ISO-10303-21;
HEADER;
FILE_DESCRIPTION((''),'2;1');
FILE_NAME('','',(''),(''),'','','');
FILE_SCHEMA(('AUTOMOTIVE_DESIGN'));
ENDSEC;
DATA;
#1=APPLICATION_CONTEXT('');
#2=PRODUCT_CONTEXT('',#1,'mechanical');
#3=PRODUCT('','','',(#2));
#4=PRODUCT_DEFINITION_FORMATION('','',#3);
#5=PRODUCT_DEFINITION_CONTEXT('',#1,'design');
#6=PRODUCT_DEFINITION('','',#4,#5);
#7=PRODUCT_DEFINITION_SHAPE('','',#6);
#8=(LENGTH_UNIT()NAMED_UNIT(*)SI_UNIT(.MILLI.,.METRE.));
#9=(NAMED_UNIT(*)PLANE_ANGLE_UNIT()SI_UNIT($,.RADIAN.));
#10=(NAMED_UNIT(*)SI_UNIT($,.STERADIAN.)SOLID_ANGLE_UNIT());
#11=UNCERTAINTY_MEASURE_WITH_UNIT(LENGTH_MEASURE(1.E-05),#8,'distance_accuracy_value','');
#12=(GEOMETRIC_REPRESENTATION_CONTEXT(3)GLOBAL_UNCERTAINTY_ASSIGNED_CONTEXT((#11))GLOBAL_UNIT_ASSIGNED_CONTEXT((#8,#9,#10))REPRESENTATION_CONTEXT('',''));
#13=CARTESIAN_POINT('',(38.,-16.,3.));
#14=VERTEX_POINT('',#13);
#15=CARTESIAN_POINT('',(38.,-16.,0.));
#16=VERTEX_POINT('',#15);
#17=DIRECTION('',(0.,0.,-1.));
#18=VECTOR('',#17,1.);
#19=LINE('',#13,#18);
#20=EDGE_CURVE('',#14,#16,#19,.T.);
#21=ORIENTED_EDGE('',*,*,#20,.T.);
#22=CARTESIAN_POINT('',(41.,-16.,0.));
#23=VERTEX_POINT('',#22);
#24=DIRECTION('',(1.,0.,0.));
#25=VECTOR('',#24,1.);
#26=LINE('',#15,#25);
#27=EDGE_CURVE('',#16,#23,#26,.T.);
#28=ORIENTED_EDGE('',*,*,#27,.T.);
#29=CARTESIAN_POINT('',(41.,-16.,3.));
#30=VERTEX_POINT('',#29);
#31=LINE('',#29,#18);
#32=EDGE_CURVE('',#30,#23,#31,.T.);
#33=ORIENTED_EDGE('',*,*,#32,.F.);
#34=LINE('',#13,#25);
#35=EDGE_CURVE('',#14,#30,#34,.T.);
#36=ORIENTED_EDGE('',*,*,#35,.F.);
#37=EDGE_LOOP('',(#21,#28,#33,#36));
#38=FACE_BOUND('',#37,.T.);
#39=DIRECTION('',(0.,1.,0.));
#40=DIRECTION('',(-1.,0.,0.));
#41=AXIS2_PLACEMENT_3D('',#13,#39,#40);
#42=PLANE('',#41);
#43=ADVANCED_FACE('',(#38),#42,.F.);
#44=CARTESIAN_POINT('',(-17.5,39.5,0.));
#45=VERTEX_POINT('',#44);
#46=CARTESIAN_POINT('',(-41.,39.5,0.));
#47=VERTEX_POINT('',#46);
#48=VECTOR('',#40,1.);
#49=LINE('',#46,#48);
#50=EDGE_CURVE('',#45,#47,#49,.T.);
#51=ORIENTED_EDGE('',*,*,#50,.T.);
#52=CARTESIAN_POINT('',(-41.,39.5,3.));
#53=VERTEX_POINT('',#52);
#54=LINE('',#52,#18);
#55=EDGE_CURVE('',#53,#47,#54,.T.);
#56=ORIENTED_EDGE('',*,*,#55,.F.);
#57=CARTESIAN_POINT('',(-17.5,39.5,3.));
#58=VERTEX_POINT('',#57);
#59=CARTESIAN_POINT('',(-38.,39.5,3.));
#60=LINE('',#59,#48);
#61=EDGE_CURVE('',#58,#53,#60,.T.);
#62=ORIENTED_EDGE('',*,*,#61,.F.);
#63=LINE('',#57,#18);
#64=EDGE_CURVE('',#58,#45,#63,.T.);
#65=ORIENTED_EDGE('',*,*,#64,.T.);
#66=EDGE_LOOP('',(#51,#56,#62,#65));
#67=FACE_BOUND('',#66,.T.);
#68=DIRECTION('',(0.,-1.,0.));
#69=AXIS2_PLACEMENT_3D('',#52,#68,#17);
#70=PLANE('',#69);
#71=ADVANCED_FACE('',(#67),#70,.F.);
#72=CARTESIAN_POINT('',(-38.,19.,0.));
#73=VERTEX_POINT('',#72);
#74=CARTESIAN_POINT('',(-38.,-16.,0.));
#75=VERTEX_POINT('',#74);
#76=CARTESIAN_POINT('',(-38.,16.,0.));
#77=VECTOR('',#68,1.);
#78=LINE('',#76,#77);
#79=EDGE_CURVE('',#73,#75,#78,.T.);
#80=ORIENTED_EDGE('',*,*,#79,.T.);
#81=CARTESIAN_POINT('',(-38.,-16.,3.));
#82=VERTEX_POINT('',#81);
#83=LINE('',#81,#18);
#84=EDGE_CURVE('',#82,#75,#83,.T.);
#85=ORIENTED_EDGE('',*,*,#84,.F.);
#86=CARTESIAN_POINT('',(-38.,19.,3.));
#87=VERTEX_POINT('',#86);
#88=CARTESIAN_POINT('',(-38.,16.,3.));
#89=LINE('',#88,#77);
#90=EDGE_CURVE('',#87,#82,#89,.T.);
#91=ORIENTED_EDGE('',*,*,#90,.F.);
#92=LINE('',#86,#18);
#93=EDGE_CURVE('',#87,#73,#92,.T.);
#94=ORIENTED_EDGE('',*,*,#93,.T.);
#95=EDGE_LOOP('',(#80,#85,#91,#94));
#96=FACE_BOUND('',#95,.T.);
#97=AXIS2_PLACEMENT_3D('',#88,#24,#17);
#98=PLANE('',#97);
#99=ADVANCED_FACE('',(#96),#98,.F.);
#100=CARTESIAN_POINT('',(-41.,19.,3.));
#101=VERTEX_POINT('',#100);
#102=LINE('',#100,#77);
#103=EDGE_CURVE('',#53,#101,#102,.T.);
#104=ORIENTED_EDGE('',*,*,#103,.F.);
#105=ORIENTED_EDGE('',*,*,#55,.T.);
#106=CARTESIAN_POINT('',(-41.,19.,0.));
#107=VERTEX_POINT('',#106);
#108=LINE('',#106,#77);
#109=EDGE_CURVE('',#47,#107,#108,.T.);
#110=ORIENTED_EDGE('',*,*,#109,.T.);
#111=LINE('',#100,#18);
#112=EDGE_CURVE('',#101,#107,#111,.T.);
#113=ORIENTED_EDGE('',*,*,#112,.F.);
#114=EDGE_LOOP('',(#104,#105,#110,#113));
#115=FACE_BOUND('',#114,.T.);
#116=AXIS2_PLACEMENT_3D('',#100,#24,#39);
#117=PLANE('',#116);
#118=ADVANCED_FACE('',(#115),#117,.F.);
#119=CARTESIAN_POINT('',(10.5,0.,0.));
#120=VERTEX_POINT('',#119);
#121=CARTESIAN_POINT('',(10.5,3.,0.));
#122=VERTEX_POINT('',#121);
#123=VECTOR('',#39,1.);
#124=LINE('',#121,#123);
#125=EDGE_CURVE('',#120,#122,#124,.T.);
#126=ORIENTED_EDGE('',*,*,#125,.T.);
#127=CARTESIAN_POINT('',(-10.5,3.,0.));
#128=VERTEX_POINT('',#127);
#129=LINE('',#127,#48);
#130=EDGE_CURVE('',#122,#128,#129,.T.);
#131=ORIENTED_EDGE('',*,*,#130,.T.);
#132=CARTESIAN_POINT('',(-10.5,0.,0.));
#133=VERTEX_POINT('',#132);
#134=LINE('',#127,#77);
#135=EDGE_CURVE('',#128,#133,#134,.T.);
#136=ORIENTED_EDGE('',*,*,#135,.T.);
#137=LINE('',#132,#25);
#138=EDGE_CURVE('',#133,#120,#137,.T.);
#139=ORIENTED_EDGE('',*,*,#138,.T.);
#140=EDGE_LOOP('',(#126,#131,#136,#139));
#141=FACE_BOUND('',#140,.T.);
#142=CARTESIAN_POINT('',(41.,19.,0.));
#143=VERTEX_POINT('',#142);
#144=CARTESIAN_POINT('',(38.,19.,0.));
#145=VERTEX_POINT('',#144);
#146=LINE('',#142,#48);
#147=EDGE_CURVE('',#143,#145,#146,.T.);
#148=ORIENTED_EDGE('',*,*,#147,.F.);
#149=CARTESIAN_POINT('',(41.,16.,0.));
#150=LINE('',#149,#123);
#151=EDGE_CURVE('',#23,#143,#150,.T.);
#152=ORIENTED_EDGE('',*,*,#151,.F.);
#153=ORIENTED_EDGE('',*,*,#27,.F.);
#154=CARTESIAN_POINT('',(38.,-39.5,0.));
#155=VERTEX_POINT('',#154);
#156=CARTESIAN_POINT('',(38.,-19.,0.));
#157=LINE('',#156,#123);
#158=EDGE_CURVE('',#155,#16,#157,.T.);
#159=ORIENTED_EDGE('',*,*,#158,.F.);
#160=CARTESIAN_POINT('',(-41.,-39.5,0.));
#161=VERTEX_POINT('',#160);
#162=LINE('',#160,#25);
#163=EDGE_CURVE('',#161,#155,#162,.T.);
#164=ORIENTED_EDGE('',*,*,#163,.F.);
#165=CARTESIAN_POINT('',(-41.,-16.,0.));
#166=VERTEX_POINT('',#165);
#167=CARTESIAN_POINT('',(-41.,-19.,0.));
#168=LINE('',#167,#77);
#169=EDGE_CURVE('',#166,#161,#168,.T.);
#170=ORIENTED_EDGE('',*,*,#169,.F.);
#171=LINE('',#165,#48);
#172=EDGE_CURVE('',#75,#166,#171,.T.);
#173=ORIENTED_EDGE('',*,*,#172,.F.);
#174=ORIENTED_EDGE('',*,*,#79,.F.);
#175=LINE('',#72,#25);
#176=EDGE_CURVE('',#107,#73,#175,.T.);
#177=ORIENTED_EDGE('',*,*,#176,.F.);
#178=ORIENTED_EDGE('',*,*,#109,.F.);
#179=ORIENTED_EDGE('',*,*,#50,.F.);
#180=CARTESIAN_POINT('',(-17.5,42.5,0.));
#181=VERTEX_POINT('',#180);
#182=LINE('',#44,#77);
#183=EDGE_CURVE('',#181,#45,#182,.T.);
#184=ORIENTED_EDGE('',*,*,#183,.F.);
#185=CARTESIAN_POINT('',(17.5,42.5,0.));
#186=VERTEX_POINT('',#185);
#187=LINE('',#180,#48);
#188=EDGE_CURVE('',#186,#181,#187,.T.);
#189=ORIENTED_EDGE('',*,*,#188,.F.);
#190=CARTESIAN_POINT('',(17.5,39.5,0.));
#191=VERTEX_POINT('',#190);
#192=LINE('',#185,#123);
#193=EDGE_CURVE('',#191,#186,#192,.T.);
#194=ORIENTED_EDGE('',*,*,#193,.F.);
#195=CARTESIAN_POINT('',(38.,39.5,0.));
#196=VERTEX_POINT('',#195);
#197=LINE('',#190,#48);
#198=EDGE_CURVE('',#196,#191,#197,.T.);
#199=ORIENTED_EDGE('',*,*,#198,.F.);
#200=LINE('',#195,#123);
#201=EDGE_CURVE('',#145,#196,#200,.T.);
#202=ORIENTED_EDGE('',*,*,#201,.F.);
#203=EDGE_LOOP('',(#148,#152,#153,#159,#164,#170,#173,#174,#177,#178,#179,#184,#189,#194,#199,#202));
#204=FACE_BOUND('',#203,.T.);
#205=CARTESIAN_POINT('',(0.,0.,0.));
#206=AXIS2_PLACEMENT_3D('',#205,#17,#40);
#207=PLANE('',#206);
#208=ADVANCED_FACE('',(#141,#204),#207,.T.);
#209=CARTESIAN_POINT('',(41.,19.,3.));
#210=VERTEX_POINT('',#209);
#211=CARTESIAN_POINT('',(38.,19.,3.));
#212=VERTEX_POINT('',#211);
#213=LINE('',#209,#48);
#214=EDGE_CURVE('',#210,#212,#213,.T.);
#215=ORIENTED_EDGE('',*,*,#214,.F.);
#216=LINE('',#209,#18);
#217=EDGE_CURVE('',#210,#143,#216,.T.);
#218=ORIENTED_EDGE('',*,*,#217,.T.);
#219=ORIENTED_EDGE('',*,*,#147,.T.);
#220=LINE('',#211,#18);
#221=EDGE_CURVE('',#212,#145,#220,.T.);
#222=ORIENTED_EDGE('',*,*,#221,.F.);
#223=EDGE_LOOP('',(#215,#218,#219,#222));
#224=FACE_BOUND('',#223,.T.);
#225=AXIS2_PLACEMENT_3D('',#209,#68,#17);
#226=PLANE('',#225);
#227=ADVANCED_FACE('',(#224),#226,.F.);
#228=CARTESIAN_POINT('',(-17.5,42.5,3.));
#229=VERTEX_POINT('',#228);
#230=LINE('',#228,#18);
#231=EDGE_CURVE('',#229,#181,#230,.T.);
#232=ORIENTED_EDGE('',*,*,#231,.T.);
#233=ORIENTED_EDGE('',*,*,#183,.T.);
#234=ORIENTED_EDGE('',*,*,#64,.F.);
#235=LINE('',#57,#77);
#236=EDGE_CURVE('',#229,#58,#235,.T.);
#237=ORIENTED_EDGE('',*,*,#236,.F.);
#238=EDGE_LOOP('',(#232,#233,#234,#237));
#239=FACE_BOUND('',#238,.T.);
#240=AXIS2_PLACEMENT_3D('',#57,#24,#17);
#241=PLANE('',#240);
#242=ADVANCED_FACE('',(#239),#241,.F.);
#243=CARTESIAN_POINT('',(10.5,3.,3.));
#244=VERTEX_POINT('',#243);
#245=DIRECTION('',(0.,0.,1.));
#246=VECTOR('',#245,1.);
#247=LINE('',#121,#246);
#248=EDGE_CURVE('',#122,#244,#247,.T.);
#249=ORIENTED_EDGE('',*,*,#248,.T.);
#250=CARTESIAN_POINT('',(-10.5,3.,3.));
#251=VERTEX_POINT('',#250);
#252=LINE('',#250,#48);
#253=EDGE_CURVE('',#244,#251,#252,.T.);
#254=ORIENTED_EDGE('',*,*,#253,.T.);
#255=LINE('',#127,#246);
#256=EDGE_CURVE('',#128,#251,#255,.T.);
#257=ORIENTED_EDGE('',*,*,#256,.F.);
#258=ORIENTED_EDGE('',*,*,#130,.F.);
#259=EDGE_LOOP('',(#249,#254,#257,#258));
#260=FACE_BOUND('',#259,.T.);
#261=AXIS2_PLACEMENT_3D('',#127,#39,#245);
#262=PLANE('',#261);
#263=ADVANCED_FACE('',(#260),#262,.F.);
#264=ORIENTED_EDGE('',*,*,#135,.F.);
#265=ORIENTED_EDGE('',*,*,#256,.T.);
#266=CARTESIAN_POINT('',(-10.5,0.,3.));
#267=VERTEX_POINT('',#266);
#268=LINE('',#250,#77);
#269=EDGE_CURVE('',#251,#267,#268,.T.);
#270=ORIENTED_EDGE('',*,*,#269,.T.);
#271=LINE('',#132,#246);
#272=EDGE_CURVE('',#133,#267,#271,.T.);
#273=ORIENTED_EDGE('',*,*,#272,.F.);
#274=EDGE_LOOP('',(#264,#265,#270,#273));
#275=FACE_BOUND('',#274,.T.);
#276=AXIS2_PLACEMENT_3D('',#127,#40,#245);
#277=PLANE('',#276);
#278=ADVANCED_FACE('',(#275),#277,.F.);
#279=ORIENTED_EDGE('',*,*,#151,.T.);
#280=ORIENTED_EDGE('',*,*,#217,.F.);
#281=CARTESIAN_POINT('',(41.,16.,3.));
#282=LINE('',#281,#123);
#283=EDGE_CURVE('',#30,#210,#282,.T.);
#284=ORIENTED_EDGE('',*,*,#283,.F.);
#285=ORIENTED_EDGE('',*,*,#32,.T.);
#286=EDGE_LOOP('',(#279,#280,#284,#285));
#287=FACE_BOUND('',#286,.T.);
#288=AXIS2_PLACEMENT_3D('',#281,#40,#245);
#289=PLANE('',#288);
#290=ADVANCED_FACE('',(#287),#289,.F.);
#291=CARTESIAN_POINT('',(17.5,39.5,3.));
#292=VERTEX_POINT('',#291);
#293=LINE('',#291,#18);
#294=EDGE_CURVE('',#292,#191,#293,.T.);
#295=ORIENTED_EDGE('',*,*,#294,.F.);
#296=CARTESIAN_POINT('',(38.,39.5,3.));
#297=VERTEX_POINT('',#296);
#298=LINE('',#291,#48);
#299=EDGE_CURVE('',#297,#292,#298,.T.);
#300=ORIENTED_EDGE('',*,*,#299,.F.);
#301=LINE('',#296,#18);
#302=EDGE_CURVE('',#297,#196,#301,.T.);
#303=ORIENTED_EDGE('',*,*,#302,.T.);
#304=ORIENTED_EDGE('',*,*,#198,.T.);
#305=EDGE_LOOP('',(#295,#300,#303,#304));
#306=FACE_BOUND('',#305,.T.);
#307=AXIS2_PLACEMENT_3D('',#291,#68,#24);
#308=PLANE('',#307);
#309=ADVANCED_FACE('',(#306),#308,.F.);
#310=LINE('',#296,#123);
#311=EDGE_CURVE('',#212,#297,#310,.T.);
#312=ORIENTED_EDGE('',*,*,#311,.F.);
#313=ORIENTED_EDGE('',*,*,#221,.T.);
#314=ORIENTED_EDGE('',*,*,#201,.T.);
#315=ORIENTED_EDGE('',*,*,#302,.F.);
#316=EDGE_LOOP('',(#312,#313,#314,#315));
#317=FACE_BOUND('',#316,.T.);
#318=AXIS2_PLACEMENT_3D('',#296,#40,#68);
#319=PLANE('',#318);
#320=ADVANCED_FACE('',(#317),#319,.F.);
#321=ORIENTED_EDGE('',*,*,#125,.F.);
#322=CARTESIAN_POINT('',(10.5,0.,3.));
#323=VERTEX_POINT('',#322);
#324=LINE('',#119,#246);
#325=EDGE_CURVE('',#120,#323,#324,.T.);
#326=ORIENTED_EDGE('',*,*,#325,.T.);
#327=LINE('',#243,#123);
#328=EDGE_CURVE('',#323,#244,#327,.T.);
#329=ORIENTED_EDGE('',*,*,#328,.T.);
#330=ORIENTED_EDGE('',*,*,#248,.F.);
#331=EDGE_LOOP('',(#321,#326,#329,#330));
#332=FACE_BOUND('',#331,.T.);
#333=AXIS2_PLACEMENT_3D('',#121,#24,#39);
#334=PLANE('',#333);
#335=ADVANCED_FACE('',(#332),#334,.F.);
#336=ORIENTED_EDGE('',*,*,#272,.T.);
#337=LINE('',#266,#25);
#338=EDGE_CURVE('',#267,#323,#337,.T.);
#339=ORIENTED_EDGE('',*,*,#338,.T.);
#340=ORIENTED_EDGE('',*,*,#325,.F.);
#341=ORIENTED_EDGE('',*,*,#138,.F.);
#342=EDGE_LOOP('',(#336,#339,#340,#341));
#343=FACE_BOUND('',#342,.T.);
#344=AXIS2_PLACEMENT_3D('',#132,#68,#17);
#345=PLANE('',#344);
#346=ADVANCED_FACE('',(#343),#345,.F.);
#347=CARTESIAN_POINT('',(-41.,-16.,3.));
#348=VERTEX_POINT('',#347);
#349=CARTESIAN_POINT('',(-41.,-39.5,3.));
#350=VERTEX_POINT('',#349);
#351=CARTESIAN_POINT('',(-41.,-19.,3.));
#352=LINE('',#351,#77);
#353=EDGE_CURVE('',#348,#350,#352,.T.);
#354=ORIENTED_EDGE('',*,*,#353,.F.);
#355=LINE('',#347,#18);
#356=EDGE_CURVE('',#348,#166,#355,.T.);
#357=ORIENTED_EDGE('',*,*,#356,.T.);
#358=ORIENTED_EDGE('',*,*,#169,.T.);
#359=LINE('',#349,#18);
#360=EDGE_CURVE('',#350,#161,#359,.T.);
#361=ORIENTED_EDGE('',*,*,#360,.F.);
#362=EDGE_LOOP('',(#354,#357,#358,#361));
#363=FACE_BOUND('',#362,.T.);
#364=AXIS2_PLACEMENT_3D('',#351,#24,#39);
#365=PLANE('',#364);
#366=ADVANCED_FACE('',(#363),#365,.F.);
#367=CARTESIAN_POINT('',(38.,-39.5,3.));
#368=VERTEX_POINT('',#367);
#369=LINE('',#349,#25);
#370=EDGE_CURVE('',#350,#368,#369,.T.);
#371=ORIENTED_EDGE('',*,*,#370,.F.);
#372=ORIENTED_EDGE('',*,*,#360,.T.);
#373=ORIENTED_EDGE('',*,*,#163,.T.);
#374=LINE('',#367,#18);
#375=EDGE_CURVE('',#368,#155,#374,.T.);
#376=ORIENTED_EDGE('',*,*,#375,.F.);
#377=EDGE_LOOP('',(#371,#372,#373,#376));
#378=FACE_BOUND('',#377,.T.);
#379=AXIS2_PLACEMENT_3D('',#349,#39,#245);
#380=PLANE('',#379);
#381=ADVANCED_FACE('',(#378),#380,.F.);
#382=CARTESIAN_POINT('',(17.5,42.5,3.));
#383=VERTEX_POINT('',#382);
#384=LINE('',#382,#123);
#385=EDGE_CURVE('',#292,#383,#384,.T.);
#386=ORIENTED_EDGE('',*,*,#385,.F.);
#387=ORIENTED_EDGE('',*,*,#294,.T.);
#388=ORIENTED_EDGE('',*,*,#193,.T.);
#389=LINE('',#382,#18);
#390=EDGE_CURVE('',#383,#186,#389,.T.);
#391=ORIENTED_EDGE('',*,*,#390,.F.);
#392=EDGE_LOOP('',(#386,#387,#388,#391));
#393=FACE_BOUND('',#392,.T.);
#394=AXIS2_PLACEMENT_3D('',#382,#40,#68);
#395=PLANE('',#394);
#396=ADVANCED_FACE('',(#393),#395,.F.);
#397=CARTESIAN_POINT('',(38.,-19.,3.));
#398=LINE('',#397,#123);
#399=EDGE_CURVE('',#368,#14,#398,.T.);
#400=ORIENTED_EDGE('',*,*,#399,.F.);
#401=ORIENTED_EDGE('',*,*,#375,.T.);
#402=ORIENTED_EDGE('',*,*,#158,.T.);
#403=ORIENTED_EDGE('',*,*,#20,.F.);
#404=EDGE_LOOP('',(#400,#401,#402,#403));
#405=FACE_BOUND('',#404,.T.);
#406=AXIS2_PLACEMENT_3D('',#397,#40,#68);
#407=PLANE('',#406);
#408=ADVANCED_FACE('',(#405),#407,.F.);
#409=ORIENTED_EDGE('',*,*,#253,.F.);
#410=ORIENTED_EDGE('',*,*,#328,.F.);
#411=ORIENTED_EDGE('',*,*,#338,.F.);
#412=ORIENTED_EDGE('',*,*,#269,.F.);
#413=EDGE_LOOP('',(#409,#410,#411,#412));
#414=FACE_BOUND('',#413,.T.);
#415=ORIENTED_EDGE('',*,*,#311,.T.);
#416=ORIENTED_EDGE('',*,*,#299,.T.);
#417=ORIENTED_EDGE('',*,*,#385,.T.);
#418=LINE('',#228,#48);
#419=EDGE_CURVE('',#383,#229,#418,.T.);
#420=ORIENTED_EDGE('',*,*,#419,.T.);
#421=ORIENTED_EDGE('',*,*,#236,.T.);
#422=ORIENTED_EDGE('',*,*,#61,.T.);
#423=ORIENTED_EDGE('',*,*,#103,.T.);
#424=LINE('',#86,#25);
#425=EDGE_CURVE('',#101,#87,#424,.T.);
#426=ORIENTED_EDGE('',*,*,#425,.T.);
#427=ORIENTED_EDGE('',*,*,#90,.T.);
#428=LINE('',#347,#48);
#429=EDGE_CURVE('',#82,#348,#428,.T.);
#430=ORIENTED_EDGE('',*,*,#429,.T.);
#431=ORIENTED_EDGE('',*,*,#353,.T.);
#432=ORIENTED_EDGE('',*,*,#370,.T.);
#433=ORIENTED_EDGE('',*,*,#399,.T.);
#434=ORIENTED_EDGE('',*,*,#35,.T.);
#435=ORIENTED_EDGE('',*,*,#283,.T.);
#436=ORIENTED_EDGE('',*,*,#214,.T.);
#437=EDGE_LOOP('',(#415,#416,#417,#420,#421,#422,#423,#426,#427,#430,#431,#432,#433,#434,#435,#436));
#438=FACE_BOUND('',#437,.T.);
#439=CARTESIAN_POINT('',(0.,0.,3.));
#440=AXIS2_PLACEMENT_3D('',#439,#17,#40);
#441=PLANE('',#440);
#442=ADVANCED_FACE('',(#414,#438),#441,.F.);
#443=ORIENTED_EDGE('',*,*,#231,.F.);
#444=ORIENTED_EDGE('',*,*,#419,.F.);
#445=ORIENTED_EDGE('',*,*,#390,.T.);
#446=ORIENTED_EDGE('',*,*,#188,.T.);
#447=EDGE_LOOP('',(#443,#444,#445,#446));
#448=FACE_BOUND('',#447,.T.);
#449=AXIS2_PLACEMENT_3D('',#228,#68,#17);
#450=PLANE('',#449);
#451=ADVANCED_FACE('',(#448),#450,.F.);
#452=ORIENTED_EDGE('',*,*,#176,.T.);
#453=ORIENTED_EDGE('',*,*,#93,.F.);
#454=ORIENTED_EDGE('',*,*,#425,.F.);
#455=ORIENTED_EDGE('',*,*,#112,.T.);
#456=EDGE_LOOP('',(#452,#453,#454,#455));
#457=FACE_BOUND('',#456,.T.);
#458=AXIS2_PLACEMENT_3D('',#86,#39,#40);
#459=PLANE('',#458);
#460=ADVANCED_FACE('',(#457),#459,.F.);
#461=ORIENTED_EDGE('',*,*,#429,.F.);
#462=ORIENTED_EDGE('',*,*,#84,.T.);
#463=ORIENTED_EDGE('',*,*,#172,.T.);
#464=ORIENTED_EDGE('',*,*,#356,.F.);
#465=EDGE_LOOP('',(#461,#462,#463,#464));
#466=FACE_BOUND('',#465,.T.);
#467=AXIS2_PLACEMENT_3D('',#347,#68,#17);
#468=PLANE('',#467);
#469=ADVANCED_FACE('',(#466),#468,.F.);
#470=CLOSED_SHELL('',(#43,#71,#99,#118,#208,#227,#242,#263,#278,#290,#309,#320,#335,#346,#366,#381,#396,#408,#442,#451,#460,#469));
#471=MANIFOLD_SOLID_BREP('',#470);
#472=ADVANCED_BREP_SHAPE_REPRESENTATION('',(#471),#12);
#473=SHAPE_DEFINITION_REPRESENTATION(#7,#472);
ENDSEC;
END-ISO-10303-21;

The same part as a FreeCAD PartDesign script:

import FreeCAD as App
import Part
import Sketcher


def add_polygon(sketch, points):
    """Adds a closed chain of lines whose ends are joined by coincident constraints."""
    first, n = sketch.GeometryCount, len(points)
    for a, b in zip(points, points[1:] + points[:1]):
        sketch.addGeometry(Part.LineSegment(App.Vector(*a, 0), App.Vector(*b, 0)), False)
    for i in range(n):
        sketch.addConstraint(Sketcher.Constraint("Coincident", first + i, 2, first + (i + 1) % n, 1))

doc = App.newDocument("Part")
body = doc.addObject("PartDesign::Body", "Body")

sketch1 = body.newObject("Sketcher::SketchObject", "Sketch")
sketch1.AttachmentSupport = (doc.getObject("XY_Plane"), [""])
sketch1.MapMode = "FlatFace"
add_polygon(sketch1, [(-17.5, 39.5), (-41, 39.5), (-41, 19), (-38, 19), (-38, -16), (-41, -16), (-41, -39.5), (38, -39.5), (38, -16), (41, -16), (41, 19), (38, 19), (38, 39.5), (17.5, 39.5), (17.5, 42.5), (-17.5, 42.5)])
sketch1.addConstraint([
    Sketcher.Constraint("Horizontal", 0),
    Sketcher.Constraint("Vertical", 1),
    Sketcher.Constraint("Horizontal", 2),
    Sketcher.Constraint("Vertical", 3),
    Sketcher.Constraint("Horizontal", 4),
    Sketcher.Constraint("Vertical", 5),
    Sketcher.Constraint("Horizontal", 6),
    Sketcher.Constraint("Vertical", 7),
    Sketcher.Constraint("Horizontal", 8),
    Sketcher.Constraint("Vertical", 9),
    Sketcher.Constraint("Horizontal", 10),
    Sketcher.Constraint("Vertical", 11),
    Sketcher.Constraint("Horizontal", 12),
    Sketcher.Constraint("Vertical", 13),
    Sketcher.Constraint("Horizontal", 14),
    Sketcher.Constraint("Vertical", 15),
    Sketcher.Constraint("Symmetric", 3, 2, 7, 2, -2),
    Sketcher.Constraint("Symmetric", 1, 2, 9, 2, -2),
    Sketcher.Constraint("Symmetric", 12, 2, 15, 2, -2),
    Sketcher.Constraint("Symmetric", 0, 2, 5, 2, -1),
    Sketcher.Constraint("Vertical", 7, 2, 10, 2),
    Sketcher.Constraint("Equal", 12, 1),
    Sketcher.Constraint("Equal", 14, 3),
    Sketcher.Constraint("Equal", 0, 5),
    Sketcher.Constraint("Equal", 10, 13),
    Sketcher.Constraint("DistanceX", 2, 1, 2, 2, 3.0),
    Sketcher.Constraint("DistanceX", 6, 1, 6, 2, 79.0),
    Sketcher.Constraint("DistanceX", 14, 2, 14, 1, 35.0),
])
pad1 = body.newObject("PartDesign::Pad", "Pad")
pad1.Profile = sketch1
pad1.Length = 3

sketch2 = body.newObject("Sketcher::SketchObject", "Sketch001")
sketch2.AttachmentSupport = (doc.getObject("XY_Plane"), [""])
sketch2.MapMode = "FlatFace"
sketch2.AttachmentOffset = App.Placement(App.Vector(0, 0, 3), App.Rotation())
add_polygon(sketch2, [(-10.5, 3), (-10.5, 0), (10.5, 0), (10.5, 3)])
sketch2.addConstraint([
    Sketcher.Constraint("Vertical", 0),
    Sketcher.Constraint("Horizontal", 1),
    Sketcher.Constraint("Vertical", 2),
    Sketcher.Constraint("Horizontal", 3),
    Sketcher.Constraint("Symmetric", 0, 2, 1, 2, -1, 1),
    Sketcher.Constraint("DistanceX", 1, 1, 1, 2, 21.0),
    Sketcher.Constraint("DistanceY", 0, 2, 0, 1, 3.0),
])
pocket1 = body.newObject("PartDesign::Pocket", "Pocket")
pocket1.Profile = sketch2
pocket1.Length = 3

doc.recompute()
